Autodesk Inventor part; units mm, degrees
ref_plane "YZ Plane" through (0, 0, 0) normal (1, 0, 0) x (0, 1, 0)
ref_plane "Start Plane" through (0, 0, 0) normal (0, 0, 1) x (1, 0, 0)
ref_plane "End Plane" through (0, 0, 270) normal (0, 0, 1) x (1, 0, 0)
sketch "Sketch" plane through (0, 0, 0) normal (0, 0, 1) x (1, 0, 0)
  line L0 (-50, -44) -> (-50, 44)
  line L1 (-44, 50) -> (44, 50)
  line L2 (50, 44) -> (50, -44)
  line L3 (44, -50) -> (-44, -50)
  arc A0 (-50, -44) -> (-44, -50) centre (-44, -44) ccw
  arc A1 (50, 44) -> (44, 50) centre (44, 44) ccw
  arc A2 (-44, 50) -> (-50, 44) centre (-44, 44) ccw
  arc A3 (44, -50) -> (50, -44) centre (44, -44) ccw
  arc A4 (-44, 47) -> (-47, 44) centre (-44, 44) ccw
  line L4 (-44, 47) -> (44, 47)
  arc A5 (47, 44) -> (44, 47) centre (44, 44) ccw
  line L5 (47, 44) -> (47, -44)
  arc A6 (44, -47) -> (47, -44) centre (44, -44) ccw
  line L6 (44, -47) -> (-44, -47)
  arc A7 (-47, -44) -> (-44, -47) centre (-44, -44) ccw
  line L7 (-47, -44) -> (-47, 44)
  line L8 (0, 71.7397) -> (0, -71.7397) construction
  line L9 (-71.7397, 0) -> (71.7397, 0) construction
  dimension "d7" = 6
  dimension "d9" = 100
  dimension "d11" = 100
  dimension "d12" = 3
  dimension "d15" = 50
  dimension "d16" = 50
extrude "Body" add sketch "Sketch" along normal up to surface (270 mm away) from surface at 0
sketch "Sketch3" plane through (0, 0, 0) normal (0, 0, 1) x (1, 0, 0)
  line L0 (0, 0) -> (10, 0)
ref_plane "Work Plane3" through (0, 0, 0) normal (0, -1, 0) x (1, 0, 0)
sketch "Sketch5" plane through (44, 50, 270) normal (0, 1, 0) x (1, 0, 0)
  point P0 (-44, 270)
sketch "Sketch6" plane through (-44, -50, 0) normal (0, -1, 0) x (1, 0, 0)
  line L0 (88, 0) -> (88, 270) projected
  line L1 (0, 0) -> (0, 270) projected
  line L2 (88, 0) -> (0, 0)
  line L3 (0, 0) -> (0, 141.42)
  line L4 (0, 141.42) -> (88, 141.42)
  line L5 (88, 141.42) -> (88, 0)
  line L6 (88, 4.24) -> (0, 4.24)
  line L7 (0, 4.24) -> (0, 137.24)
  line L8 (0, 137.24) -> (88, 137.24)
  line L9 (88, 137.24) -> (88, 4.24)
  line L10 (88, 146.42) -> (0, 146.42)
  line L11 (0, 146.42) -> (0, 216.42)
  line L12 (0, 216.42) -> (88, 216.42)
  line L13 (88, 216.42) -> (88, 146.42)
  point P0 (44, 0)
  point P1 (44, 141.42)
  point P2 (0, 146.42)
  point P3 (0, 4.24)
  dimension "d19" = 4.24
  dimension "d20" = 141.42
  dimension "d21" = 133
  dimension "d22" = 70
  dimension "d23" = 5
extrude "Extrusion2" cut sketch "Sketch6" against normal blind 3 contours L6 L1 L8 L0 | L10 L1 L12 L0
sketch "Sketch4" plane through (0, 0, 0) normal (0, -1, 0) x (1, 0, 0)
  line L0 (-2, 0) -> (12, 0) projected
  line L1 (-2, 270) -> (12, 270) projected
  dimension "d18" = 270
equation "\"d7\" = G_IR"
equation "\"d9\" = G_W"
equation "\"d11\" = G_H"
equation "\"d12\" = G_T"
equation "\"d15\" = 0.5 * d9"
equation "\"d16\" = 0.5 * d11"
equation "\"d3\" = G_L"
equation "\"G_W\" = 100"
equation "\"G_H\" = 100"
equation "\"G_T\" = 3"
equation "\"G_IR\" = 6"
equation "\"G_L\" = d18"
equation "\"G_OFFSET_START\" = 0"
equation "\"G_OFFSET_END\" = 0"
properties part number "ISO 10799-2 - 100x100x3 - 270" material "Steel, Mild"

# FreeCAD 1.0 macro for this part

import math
import FreeCAD as App
import Part
import Sketcher

V = App.Vector
Q = App.Units.Quantity

doc = App.newDocument("Part")
body = doc.addObject("PartDesign::Body", "Body")

# Sketch on XY plane
sketch1 = doc.addObject("Sketcher::SketchObject", "Sketch")
body.addObject(sketch1)
sketch1.AttachmentSupport = (doc.XY_Plane, [""])
sketch1.MapMode = "FlatFace"
sketch1.addGeometry(Part.LineSegment(V(-50, 44, 0), V(-50, -44, 0)), False)
sketch1.addGeometry(Part.ArcOfCircle(Part.Circle(V(-44, -44, 0), V(0, 0, 1), 6), math.radians(180), math.radians(270)), False)
sketch1.addGeometry(Part.LineSegment(V(-44, -50, 0), V(44, -50, 0)), False)
sketch1.addGeometry(Part.ArcOfCircle(Part.Circle(V(44, -44, 0), V(0, 0, 1), 6), math.radians(-90), math.radians(0)), False)
sketch1.addGeometry(Part.LineSegment(V(50, -44, 0), V(50, 44, 0)), False)
sketch1.addGeometry(Part.ArcOfCircle(Part.Circle(V(44, 44, 0), V(0, 0, 1), 6), math.radians(0), math.radians(90)), False)
sketch1.addGeometry(Part.LineSegment(V(44, 50, 0), V(-44, 50, 0)), False)
sketch1.addGeometry(Part.ArcOfCircle(Part.Circle(V(-44, 44, 0), V(0, 0, 1), 6), math.radians(90), math.radians(180)), False)
sketch1.addGeometry(Part.ArcOfCircle(Part.Circle(V(-44, 44, 0), V(0, 0, 1), 3), math.radians(90), math.radians(180)), False)
sketch1.addGeometry(Part.LineSegment(V(-44, 47, 0), V(44, 47, 0)), False)
sketch1.addGeometry(Part.ArcOfCircle(Part.Circle(V(44, 44, 0), V(0, 0, 1), 3), math.radians(0), math.radians(90)), False)
sketch1.addGeometry(Part.LineSegment(V(47, 44, 0), V(47, -44, 0)), False)
sketch1.addGeometry(Part.ArcOfCircle(Part.Circle(V(44, -44, 0), V(0, 0, 1), 3), math.radians(-90), math.radians(0)), False)
sketch1.addGeometry(Part.LineSegment(V(44, -47, 0), V(-44, -47, 0)), False)
sketch1.addGeometry(Part.ArcOfCircle(Part.Circle(V(-44, -44, 0), V(0, 0, 1), 3), math.radians(180), math.radians(270)), False)
sketch1.addGeometry(Part.LineSegment(V(-47, -44, 0), V(-47, 44, 0)), False)
sketch1.addConstraint(Sketcher.Constraint("Tangent", 0, 2, 1, 1))
sketch1.addConstraint(Sketcher.Constraint("Tangent", 1, 2, 2, 1))
sketch1.addConstraint(Sketcher.Constraint("Tangent", 2, 2, 3, 1))
sketch1.addConstraint(Sketcher.Constraint("Tangent", 3, 2, 4, 1))
sketch1.addConstraint(Sketcher.Constraint("Tangent", 4, 2, 5, 1))
sketch1.addConstraint(Sketcher.Constraint("Tangent", 5, 2, 6, 1))
sketch1.addConstraint(Sketcher.Constraint("Tangent", 6, 2, 7, 1))
sketch1.addConstraint(Sketcher.Constraint("Tangent", 7, 2, 0, 1))
sketch1.addConstraint(Sketcher.Constraint("Tangent", 8, 1, 9, 1))
sketch1.addConstraint(Sketcher.Constraint("Tangent", 9, 2, 10, 2))
sketch1.addConstraint(Sketcher.Constraint("Tangent", 10, 1, 11, 1))
sketch1.addConstraint(Sketcher.Constraint("Tangent", 11, 2, 12, 2))
sketch1.addConstraint(Sketcher.Constraint("Tangent", 12, 1, 13, 1))
sketch1.addConstraint(Sketcher.Constraint("Tangent", 13, 2, 14, 2))
sketch1.addConstraint(Sketcher.Constraint("Tangent", 14, 1, 15, 1))
sketch1.addConstraint(Sketcher.Constraint("Tangent", 15, 2, 8, 2))
sketch1.addConstraint(Sketcher.Constraint("Vertical", 0))
sketch1.addConstraint(Sketcher.Constraint("Horizontal", 2))
sketch1.addConstraint(Sketcher.Constraint("Vertical", 4))
sketch1.addConstraint(Sketcher.Constraint("Horizontal", 6))
sketch1.addConstraint(Sketcher.Constraint("Horizontal", 9))
sketch1.addConstraint(Sketcher.Constraint("Vertical", 11))
sketch1.addConstraint(Sketcher.Constraint("Horizontal", 13))
sketch1.addConstraint(Sketcher.Constraint("Vertical", 15))
sketch1.addConstraint(Sketcher.Constraint("Coincident", 8, 3, 7, 3))
sketch1.addConstraint(Sketcher.Constraint("Coincident", 10, 3, 5, 3))
sketch1.addConstraint(Sketcher.Constraint("Coincident", 12, 3, 3, 3))
sketch1.addConstraint(Sketcher.Constraint("Equal", 1, 3))
sketch1.addConstraint(Sketcher.Constraint("Equal", 3, 5))
sketch1.addConstraint(Sketcher.Constraint("Equal", 5, 7))
sketch1.addConstraint(Sketcher.Constraint("Equal", 12, 14))
sketch1.addConstraint(Sketcher.Constraint("Symmetric", 1, 3, 5, 3, -1, 1))
sketch1.addConstraint(Sketcher.Constraint("Equal", 13, 0))
sketch1.addConstraint(Sketcher.Constraint("Radius", 1, Q("6 mm")))
sketch1.addConstraint(Sketcher.Constraint("Radius", 8, Q("3 mm")))
sketch1.addConstraint(Sketcher.Constraint("DistanceX", 0, 2, -1, 1, Q("50 mm")))
pad1 = doc.addObject("PartDesign::Pad", "Pad")
body.addObject(pad1)
pad1.Profile = sketch1
pad1.Length = 270

# Sketch on XZ plane
sketch2 = doc.addObject("Sketcher::SketchObject", "Sketch001")
body.addObject(sketch2)
sketch2.AttachmentSupport = (doc.XZ_Plane, [""])
sketch2.MapMode = "FlatFace"
sketch2.AttachmentOffset = App.Placement(V(0, 0, 50), App.Rotation())
sketch2.addGeometry(Part.LineSegment(V(-44, 4.24, 0), V(44, 4.24, 0)), False)
sketch2.addGeometry(Part.LineSegment(V(44, 4.24, 0), V(44, 137.24, 0)), False)
sketch2.addGeometry(Part.LineSegment(V(44, 137.24, 0), V(-44, 137.24, 0)), False)
sketch2.addGeometry(Part.LineSegment(V(-44, 137.24, 0), V(-44, 4.24, 0)), False)
sketch2.addGeometry(Part.LineSegment(V(-44, 146.42, 0), V(44, 146.42, 0)), False)
sketch2.addGeometry(Part.LineSegment(V(44, 146.42, 0), V(44, 216.42, 0)), False)
sketch2.addGeometry(Part.LineSegment(V(44, 216.42, 0), V(-44, 216.42, 0)), False)
sketch2.addGeometry(Part.LineSegment(V(-44, 216.42, 0), V(-44, 146.42, 0)), False)
sketch2.addConstraint(Sketcher.Constraint("Coincident", 0, 2, 1, 1))
sketch2.addConstraint(Sketcher.Constraint("Coincident", 1, 2, 2, 1))
sketch2.addConstraint(Sketcher.Constraint("Coincident", 2, 2, 3, 1))
sketch2.addConstraint(Sketcher.Constraint("Coincident", 3, 2, 0, 1))
sketch2.addConstraint(Sketcher.Constraint("Coincident", 4, 2, 5, 1))
sketch2.addConstraint(Sketcher.Constraint("Coincident", 5, 2, 6, 1))
sketch2.addConstraint(Sketcher.Constraint("Coincident", 6, 2, 7, 1))
sketch2.addConstraint(Sketcher.Constraint("Coincident", 7, 2, 4, 1))
sketch2.addConstraint(Sketcher.Constraint("Horizontal", 0))
sketch2.addConstraint(Sketcher.Constraint("Vertical", 1))
sketch2.addConstraint(Sketcher.Constraint("Horizontal", 2))
sketch2.addConstraint(Sketcher.Constraint("Vertical", 3))
sketch2.addConstraint(Sketcher.Constraint("Horizontal", 4))
sketch2.addConstraint(Sketcher.Constraint("Vertical", 5))
sketch2.addConstraint(Sketcher.Constraint("Horizontal", 6))
sketch2.addConstraint(Sketcher.Constraint("Vertical", 7))
sketch2.addConstraint(Sketcher.Constraint("Vertical", 1, 2, 4, 2))
sketch2.addConstraint(Sketcher.Constraint("Vertical", 3, 2, 6, 2))
sketch2.addConstraint(Sketcher.Constraint("DistanceY", 1, 1, 1, 2, Q("133 mm")))
sketch2.addConstraint(Sketcher.Constraint("DistanceY", 5, 1, 5, 2, Q("70 mm")))
sketch2.addConstraint(Sketcher.Constraint("DistanceX", 0, 1, 0, 2, Q("88 mm")))
sketch2.addConstraint(Sketcher.Constraint("DistanceY", -1, 1, 0, 2, Q("4.24 mm")))
sketch2.addConstraint(Sketcher.Constraint("DistanceX", -1, 1, 0, 2, Q("44 mm")))
sketch2.addConstraint(Sketcher.Constraint("DistanceY", -1, 1, 4, 2, Q("146.42 mm")))
pocket1 = doc.addObject("PartDesign::Pocket", "Pocket")
body.addObject(pocket1)
pocket1.Profile = sketch2
pocket1.Length = 3

doc.recompute()
